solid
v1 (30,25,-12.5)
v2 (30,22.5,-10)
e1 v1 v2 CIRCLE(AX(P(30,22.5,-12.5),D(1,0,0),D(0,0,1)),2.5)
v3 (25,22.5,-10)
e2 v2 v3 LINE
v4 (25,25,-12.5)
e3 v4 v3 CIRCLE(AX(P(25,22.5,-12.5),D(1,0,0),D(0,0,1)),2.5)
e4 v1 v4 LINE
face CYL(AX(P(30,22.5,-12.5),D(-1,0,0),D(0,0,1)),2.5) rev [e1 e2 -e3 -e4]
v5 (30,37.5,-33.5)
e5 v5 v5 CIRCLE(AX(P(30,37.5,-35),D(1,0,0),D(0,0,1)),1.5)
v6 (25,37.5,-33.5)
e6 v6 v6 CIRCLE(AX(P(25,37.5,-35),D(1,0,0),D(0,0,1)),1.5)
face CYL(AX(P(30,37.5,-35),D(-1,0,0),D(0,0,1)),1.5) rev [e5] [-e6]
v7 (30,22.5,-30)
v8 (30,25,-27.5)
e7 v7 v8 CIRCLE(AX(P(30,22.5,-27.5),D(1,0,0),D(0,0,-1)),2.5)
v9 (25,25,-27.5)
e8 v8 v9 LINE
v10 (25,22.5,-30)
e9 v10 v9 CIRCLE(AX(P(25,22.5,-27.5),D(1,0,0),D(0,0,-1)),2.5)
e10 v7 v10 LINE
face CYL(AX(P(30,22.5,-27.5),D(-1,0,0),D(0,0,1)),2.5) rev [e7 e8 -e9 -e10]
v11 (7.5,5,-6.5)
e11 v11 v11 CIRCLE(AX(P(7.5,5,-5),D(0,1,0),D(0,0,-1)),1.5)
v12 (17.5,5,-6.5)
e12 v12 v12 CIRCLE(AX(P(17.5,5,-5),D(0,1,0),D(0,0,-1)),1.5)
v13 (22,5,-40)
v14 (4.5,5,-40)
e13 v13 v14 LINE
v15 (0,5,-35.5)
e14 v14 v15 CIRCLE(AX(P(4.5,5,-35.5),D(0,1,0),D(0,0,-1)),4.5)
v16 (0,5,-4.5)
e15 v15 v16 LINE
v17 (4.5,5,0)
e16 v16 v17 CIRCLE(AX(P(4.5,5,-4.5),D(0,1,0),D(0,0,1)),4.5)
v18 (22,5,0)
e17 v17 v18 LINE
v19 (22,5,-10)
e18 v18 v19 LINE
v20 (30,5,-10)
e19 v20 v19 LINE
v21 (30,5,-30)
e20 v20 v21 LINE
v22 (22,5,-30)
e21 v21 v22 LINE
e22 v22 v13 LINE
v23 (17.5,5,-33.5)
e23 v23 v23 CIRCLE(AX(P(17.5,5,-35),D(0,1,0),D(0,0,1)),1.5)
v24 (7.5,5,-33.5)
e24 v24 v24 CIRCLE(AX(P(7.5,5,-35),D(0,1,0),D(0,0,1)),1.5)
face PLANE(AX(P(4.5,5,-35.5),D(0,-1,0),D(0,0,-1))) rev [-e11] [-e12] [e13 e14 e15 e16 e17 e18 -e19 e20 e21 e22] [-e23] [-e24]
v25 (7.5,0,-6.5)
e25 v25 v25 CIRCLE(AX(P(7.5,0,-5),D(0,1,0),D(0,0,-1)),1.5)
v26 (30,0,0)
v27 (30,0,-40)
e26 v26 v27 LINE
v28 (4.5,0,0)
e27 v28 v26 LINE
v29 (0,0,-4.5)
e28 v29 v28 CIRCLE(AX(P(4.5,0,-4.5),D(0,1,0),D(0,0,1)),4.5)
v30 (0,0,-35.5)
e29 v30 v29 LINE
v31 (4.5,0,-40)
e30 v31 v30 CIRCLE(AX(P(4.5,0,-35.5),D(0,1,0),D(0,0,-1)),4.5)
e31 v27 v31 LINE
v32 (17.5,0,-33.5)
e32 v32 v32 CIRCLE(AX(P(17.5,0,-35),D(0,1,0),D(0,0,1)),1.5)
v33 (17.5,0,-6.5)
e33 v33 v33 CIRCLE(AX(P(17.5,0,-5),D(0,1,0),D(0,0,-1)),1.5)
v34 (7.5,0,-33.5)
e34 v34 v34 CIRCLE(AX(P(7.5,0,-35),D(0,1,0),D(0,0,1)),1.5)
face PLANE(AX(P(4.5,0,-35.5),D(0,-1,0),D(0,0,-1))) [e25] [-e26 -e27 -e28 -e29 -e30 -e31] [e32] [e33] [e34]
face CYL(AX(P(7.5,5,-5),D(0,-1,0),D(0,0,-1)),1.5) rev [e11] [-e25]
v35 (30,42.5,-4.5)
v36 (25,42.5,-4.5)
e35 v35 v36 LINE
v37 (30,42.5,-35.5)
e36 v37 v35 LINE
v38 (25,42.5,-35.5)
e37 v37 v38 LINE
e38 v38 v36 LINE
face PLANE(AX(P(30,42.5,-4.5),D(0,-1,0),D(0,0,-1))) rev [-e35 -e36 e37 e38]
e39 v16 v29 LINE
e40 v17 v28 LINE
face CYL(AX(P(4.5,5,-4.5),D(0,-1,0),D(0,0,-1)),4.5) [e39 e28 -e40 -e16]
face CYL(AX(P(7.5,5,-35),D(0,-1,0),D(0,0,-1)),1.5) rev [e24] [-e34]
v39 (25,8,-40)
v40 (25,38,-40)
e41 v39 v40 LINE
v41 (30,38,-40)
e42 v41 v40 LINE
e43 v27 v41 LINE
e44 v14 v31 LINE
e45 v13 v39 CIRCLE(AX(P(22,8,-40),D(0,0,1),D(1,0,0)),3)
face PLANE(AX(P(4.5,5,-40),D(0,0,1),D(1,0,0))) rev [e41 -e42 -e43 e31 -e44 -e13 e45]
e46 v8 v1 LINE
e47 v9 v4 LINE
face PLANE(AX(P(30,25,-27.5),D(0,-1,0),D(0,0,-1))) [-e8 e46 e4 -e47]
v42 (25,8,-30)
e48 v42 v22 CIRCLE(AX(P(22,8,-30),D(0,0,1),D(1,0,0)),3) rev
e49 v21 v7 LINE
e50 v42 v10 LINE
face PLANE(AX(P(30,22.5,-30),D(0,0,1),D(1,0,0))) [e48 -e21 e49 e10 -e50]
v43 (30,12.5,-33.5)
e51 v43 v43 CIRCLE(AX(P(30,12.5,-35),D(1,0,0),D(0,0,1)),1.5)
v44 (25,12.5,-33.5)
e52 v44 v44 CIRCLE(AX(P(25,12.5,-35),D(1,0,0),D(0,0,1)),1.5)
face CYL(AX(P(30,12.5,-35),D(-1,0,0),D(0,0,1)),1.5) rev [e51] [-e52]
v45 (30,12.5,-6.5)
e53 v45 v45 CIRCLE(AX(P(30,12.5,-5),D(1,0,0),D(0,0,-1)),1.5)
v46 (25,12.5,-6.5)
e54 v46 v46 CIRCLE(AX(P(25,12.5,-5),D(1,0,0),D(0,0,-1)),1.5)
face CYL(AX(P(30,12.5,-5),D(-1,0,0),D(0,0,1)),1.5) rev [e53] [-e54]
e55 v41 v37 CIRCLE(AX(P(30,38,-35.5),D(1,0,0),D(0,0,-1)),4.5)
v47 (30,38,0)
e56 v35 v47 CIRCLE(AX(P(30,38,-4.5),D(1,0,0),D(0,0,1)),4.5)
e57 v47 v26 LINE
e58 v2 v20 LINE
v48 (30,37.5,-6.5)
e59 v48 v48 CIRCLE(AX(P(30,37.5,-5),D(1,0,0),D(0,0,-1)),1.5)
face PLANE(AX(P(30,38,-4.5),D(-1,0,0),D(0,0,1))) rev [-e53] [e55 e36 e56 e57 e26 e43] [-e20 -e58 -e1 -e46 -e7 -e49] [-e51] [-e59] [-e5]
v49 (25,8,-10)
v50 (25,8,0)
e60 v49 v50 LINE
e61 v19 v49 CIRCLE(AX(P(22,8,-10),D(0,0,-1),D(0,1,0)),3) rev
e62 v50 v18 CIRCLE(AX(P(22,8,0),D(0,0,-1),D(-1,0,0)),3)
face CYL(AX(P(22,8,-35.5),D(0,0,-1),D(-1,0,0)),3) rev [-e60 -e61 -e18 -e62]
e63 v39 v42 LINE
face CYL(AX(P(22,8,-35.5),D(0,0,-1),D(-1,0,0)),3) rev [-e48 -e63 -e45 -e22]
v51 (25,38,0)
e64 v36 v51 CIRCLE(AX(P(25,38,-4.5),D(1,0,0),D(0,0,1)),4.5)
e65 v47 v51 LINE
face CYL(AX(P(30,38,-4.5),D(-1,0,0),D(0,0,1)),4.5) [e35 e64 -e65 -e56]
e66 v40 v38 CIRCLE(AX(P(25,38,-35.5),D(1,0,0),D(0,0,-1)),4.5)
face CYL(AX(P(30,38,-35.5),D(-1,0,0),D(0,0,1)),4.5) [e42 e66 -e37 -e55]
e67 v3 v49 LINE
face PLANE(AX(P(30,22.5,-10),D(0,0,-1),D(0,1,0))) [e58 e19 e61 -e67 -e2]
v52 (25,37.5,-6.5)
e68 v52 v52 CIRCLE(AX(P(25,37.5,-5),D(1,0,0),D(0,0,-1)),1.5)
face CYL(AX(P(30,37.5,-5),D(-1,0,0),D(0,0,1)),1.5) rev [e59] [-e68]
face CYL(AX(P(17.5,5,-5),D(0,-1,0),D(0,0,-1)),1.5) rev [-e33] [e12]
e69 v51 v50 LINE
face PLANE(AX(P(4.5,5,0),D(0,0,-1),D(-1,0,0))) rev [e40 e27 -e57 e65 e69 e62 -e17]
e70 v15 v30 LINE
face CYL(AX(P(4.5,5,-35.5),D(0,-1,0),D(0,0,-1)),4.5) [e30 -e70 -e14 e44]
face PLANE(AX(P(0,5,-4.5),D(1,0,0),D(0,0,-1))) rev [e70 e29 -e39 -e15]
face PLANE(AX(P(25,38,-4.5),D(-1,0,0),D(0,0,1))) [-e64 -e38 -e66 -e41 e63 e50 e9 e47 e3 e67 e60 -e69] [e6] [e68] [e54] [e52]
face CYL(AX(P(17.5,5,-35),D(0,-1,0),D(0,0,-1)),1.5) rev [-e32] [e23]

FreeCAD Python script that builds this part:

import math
import FreeCAD as App
import Part
import Sketcher

V = App.Vector
Q = App.Units.Quantity


def edges_at(feature, points):
    """Names of the edges that pass closest to the given points."""
    edges = feature.Shape.Edges
    near = lambda p: min(range(len(edges)), key=lambda i: edges[i].distToShape(Part.Vertex(*p))[0])
    return sorted({f"Edge{near(p) + 1}" for p in points})

doc = App.newDocument("Part")
body = doc.addObject("PartDesign::Body", "Body")

# Sketch on XZ plane
sketch1 = body.newObject("Sketcher::SketchObject", "Sketch")
sketch1.AttachmentSupport = (doc.getObject("XZ_Plane"), [""])
sketch1.MapMode = "FlatFace"
sketch1.addGeometry([
    Part.LineSegment(V(4.5, 0, 0), V(25, 0, 0)),  # 0
    Part.LineSegment(V(25, 0, 0), V(25, -40, 0)),  # 1
    Part.LineSegment(V(25, -40, 0), V(4.5, -40, 0)),  # 2
    Part.ArcOfCircle(Part.Circle(V(4.5, -35.5, 0), V(0, 0, 1), 4.5), math.radians(-180), math.radians(-90)),  # 3
    Part.LineSegment(V(0, -35.5, 0), V(0, -4.5, 0)),  # 4
    Part.ArcOfCircle(Part.Circle(V(4.5, -4.5, 0), V(0, 0, 1), 4.5), math.radians(90), math.radians(180)),  # 5
    Part.Circle(V(7.5, -5, 0), V(0, 0, 1), 1.5),  # 6
    Part.Circle(V(17.5, -5, 0), V(0, 0, 1), 1.5),  # 7
    Part.Circle(V(7.5, -35, 0), V(0, 0, 1), 1.5),  # 8
    Part.Circle(V(17.5, -35, 0), V(0, 0, 1), 1.5),  # 9
], False)
sketch1.addConstraint([
    Sketcher.Constraint("Coincident", 0, 2, 1, 1),
    Sketcher.Constraint("Coincident", 1, 2, 2, 1),
    Sketcher.Constraint("Tangent", 2, 2, 3, 2),
    Sketcher.Constraint("Tangent", 3, 1, 4, 1),
    Sketcher.Constraint("Tangent", 4, 2, 5, 2),
    Sketcher.Constraint("Tangent", 5, 1, 0, 1),
    Sketcher.Constraint("Horizontal", 0),
    Sketcher.Constraint("Vertical", 1),
    Sketcher.Constraint("Horizontal", 2),
    Sketcher.Constraint("Vertical", 4),
    Sketcher.Constraint("Equal", 3, 5),
    Sketcher.Constraint("Equal", 6, 7),
    Sketcher.Constraint("Equal", 7, 8),
    Sketcher.Constraint("Equal", 8, 9),
    Sketcher.Constraint("PointOnObject", 0, 2, -1),
    Sketcher.Constraint("PointOnObject", 3, 1, -2),
    Sketcher.Constraint("Horizontal", 6, 3, 7, 3),
    Sketcher.Constraint("Horizontal", 8, 3, 9, 3),
    Sketcher.Constraint("Vertical", 6, 3, 8, 3),
    Sketcher.Constraint("Vertical", 7, 3, 9, 3),
    Sketcher.Constraint("Diameter", 6, Q("3 mm")),
    Sketcher.Constraint("Radius", 3, Q("4.5 mm")),
    Sketcher.Constraint("DistanceY", 1, 2, 1, 1, Q("40 mm")),
    Sketcher.Constraint("DistanceX", 0, 1, 0, 2, Q("20.5 mm")),
    Sketcher.Constraint("DistanceY", 6, 3, -1, 1, Q("5 mm")),
    Sketcher.Constraint("DistanceY", 8, 3, -1, 1, Q("35 mm")),
    Sketcher.Constraint("DistanceX", 5, 3, 6, 3, Q("3 mm")),
    Sketcher.Constraint("DistanceX", 6, 3, 7, 3, Q("10 mm")),
])
pad1 = body.newObject("PartDesign::Pad", "Pad")
pad1.Profile = sketch1
pad1.Length = 5
pad1.Reversed = True

# Sketch on YZ plane
sketch2 = body.newObject("Sketcher::SketchObject", "Sketch001")
sketch2.AttachmentSupport = (doc.getObject("YZ_Plane"), [""])
sketch2.MapMode = "FlatFace"
sketch2.AttachmentOffset = App.Placement(V(0, 0, 25), App.Rotation())
sketch2.addGeometry([
    Part.LineSegment(V(0, 0, 0), V(0, -40, 0)),  # 0
    Part.LineSegment(V(0, -40, 0), V(38, -40, 0)),  # 1
    Part.ArcOfCircle(Part.Circle(V(38, -35.5, 0), V(0, 0, 1), 4.5), math.radians(-90), math.radians(0)),  # 2
    Part.LineSegment(V(42.5, -35.5, 0), V(42.5, -4.5, 0)),  # 3
    Part.ArcOfCircle(Part.Circle(V(38, -4.5, 0), V(0, 0, 1), 4.5), math.radians(0), math.radians(90)),  # 4
    Part.LineSegment(V(38, 0, 0), V(0, 0, 0)),  # 5
    Part.Circle(V(12.5, -5, 0), V(0, 0, 1), 1.5),  # 6
    Part.Circle(V(12.5, -35, 0), V(0, 0, 1), 1.5),  # 7
    Part.LineSegment(V(25, -12.5, 0), V(25, -27.5, 0)),  # 8
    Part.ArcOfCircle(Part.Circle(V(22.5, -27.5, 0), V(0, 0, 1), 2.5), math.radians(-90), math.radians(0)),  # 9
    Part.LineSegment(V(22.5, -30, 0), V(5, -30, 0)),  # 10
    Part.LineSegment(V(5, -30, 0), V(5, -10, 0)),  # 11
    Part.LineSegment(V(5, -10, 0), V(22.5, -10, 0)),  # 12
    Part.ArcOfCircle(Part.Circle(V(22.5, -12.5, 0), V(0, 0, 1), 2.5), math.radians(0), math.radians(90)),  # 13
    Part.Circle(V(37.5, -5, 0), V(0, 0, 1), 1.5),  # 14
    Part.Circle(V(37.5, -35, 0), V(0, 0, 1), 1.5),  # 15
], False)
sketch2.addConstraint([
    Sketcher.Constraint("Coincident", 0, 2, 1, 1),
    Sketcher.Constraint("Tangent", 1, 2, 2, 1),
    Sketcher.Constraint("Tangent", 2, 2, 3, 1),
    Sketcher.Constraint("Tangent", 3, 2, 4, 1),
    Sketcher.Constraint("Tangent", 4, 2, 5, 1),
    Sketcher.Constraint("Coincident", 5, 2, 0, 1),
    Sketcher.Constraint("Tangent", 8, 2, 9, 2),
    Sketcher.Constraint("Tangent", 9, 1, 10, 1),
    Sketcher.Constraint("Coincident", 10, 2, 11, 1),
    Sketcher.Constraint("Coincident", 11, 2, 12, 1),
    Sketcher.Constraint("Tangent", 12, 2, 13, 2),
    Sketcher.Constraint("Tangent", 13, 1, 8, 1),
    Sketcher.Constraint("Vertical", 0),
    Sketcher.Constraint("Horizontal", 1),
    Sketcher.Constraint("Vertical", 3),
    Sketcher.Constraint("Horizontal", 5),
    Sketcher.Constraint("Vertical", 8),
    Sketcher.Constraint("Horizontal", 10),
    Sketcher.Constraint("Vertical", 11),
    Sketcher.Constraint("Horizontal", 12),
    Sketcher.Constraint("Coincident", 5, 2, -1, 1),
    Sketcher.Constraint("Equal", 2, 4),
    Sketcher.Constraint("Equal", 6, 7),
    Sketcher.Constraint("Equal", 9, 13),
    Sketcher.Constraint("Equal", 7, 14),
    Sketcher.Constraint("Equal", 14, 15),
    Sketcher.Constraint("Horizontal", 6, 3, 14, 3),
    Sketcher.Constraint("Horizontal", 7, 3, 15, 3),
    Sketcher.Constraint("Vertical", 6, 3, 7, 3),
    Sketcher.Constraint("Vertical", 14, 3, 15, 3),
    Sketcher.Constraint("Diameter", 6, Q("3 mm")),
    Sketcher.Constraint("Radius", 2, Q("4.5 mm")),
    Sketcher.Constraint("Radius", 9, Q("2.5 mm")),
    Sketcher.Constraint("DistanceX", 1, 1, 1, 2, Q("38 mm")),
    Sketcher.Constraint("DistanceY", 0, 2, 0, 1, Q("40 mm")),
    Sketcher.Constraint("DistanceY", 8, 2, 8, 1, Q("15 mm")),
    Sketcher.Constraint("DistanceX", 10, 2, 10, 1, Q("17.5 mm")),
    Sketcher.Constraint("DistanceY", 6, 3, -1, 1, Q("5 mm")),
    Sketcher.Constraint("DistanceY", 7, 3, -1, 1, Q("35 mm")),
    Sketcher.Constraint("DistanceX", -1, 1, 8, 2, Q("25 mm")),
    Sketcher.Constraint("DistanceY", 9, 1, -1, 1, Q("30 mm")),
    Sketcher.Constraint("DistanceX", 7, 3, 9, 3, Q("10 mm")),
    Sketcher.Constraint("DistanceX", 13, 3, 14, 3, Q("15 mm")),
])
pad2 = body.newObject("PartDesign::Pad", "Pad001")
pad2.Profile = sketch2
pad2.Length = 5
doc.recompute()

fillet = body.newObject("PartDesign::Fillet", "Fillet")
fillet.Base = (pad2, edges_at(pad2, [(25, 5, -35), (25, 5, -5)]))
fillet.Radius = 3

doc.recompute()
